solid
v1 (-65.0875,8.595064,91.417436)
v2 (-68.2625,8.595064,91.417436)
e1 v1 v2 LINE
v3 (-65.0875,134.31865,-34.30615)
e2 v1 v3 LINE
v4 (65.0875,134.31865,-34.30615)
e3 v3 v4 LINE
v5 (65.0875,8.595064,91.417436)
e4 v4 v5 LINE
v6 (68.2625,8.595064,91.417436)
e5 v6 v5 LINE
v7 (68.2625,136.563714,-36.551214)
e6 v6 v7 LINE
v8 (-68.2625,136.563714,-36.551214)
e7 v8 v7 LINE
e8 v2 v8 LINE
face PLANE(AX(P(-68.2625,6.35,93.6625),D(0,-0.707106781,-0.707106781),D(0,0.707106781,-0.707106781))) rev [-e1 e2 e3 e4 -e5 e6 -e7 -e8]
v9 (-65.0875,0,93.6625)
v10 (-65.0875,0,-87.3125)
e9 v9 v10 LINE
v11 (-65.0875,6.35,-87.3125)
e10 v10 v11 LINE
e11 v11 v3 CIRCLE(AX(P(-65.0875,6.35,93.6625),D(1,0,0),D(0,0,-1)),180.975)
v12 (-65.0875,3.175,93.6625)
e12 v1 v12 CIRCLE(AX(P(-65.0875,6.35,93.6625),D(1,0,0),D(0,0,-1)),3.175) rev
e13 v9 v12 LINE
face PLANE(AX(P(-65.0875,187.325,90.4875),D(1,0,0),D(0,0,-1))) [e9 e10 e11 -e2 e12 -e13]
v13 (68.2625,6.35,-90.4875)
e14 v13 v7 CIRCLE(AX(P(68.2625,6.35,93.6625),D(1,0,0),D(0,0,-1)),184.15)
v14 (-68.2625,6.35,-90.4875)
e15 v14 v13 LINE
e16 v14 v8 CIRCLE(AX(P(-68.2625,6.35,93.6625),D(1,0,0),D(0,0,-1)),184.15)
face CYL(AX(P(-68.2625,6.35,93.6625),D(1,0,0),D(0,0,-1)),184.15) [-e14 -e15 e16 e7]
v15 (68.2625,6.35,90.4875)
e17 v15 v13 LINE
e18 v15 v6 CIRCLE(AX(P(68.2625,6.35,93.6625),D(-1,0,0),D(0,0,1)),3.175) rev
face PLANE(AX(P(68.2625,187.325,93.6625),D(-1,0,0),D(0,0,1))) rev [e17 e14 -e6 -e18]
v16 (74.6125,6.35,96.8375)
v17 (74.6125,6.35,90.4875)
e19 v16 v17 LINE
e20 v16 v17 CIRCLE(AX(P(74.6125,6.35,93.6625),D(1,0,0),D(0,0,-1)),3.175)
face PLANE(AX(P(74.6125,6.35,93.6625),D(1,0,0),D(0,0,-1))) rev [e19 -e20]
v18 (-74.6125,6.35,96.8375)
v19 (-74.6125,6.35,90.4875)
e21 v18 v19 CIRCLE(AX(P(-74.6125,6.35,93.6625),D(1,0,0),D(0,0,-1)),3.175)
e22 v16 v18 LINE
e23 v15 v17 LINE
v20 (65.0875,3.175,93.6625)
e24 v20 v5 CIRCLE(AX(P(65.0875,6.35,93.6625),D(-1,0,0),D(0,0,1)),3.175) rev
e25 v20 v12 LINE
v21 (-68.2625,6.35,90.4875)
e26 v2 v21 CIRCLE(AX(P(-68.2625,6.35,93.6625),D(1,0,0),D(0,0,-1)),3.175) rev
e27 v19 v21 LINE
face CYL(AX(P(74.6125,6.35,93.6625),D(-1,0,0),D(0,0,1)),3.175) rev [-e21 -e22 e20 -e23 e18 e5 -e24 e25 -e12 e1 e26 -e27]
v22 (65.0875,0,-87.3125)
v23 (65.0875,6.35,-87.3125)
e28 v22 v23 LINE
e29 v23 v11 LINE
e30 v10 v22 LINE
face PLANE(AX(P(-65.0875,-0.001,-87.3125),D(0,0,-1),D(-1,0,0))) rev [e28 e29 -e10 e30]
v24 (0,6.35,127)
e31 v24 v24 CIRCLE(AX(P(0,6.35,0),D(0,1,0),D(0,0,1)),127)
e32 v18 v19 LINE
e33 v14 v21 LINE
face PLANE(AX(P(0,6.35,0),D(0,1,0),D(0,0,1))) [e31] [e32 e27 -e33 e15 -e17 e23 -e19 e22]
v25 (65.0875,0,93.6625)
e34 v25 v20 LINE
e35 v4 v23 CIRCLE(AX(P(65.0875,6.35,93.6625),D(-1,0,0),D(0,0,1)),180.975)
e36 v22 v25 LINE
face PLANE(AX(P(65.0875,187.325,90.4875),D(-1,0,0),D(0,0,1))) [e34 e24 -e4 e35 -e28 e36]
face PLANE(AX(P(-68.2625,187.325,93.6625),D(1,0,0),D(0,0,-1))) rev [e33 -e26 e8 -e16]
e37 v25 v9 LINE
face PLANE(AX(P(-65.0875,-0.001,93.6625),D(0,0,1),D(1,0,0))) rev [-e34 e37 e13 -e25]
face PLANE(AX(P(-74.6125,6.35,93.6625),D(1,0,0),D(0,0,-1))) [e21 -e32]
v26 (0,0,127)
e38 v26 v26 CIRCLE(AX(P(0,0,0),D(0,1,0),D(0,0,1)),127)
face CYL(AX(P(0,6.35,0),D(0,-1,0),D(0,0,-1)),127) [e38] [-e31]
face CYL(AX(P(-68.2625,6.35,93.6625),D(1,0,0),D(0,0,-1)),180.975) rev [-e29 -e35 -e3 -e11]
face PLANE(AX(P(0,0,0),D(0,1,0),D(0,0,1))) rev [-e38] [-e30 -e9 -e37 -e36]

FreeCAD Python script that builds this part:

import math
import FreeCAD as App
import Part
import Sketcher
from FreeCAD import Vector
Q = App.Units.Quantity


def add_polygon(sketch, points):
    """Adds a closed chain of lines whose ends are joined by coincident constraints."""
    first, n = sketch.GeometryCount, len(points)
    for a, b in zip(points, points[1:] + points[:1]):
        sketch.addGeometry(Part.LineSegment(App.Vector(*a, 0), App.Vector(*b, 0)), False)
    for i in range(n):
        sketch.addConstraint(Sketcher.Constraint("Coincident", first + i, 2, first + (i + 1) % n, 1))

doc = App.newDocument("Part")
body = doc.addObject("PartDesign::Body", "Body")

sketch1 = body.newObject("Sketcher::SketchObject", "Sketch")
sketch1.AttachmentSupport = (doc.getObject("XZ_Plane"), [""])
sketch1.MapMode = "FlatFace"
sketch1.addGeometry(Part.Circle(Vector(0, 0, 0), Vector(0, 0, 1), 127), False)
sketch1.addConstraint([
    Sketcher.Constraint("Coincident", 0, 3, -1, 1),
    Sketcher.Constraint("Diameter", 0, Q("10 in")),
])
pad1 = body.newObject("PartDesign::Pad", "Pad")
pad1.Profile = sketch1
pad1.Length = Q("0.25 in")
pad1.Reversed = True

sketch2 = body.newObject("Sketcher::SketchObject", "Sketch001")
sketch2.AttachmentSupport = (doc.getObject("XZ_Plane"), [""])
sketch2.MapMode = "FlatFace"
sketch2.AttachmentOffset = App.Placement(Vector(0, 0, -0.25 * 25.4), App.Rotation())
add_polygon(sketch2, [(-68.2625, -93.6625), (-68.2625, 93.6625), (68.2625, 93.6625), (68.2625, -93.6625)])
add_polygon(sketch2, [(65.0875, 90.4875), (-65.0875, 90.4875), (-65.0875, -90.4875), (65.0875, -90.4875)])
sketch2.addConstraint([
    Sketcher.Constraint("Vertical", 0),
    Sketcher.Constraint("Horizontal", 1),
    Sketcher.Constraint("Vertical", 2),
    Sketcher.Constraint("Horizontal", 3),
    Sketcher.Constraint("Horizontal", 4),
    Sketcher.Constraint("Vertical", 5),
    Sketcher.Constraint("Horizontal", 6),
    Sketcher.Constraint("Vertical", 7),
    Sketcher.Constraint("Symmetric", 0, 2, 2, 2, -1, 1),
    Sketcher.Constraint("Symmetric", 4, 2, 6, 2, -1, 1),
    Sketcher.Constraint("DistanceX", 1, 1, 1, 2, Q("5.375 in")),
    Sketcher.Constraint("DistanceX", 4, 2, 4, 1, Q("5.125 in")),
    Sketcher.Constraint("DistanceY", 0, 1, 0, 2, Q("7.375 in")),
    Sketcher.Constraint("DistanceY", 5, 2, 5, 1, Q("7.125 in")),
])
pad2 = body.newObject("PartDesign::Pad", "Pad001")
pad2.Profile = sketch2
pad2.Length = Q("7.125 in")
pad2.Reversed = True

sketch3 = body.newObject("Sketcher::SketchObject", "Sketch002")
sketch3.AttachmentSupport = (doc.getObject("YZ_Plane"), [""])
sketch3.MapMode = "FlatFace"
sketch3.AttachmentOffset = App.Placement(Vector(0, 0, 2.6875 * 25.4), App.Rotation())
sketch3.addGeometry([
    Part.LineSegment(Vector(187.325, -93.6625, 0), Vector(187.325, 93.6625, 0)),
    Part.ArcOfCircle(Part.Circle(Vector(6.35, 93.6625, 0), Vector(0, 0, 1), 180.975), math.radians(-90), math.radians(0)),
    Part.LineSegment(Vector(6.35, -87.3125, 0), Vector(6.35, -93.6625, 0)),
    Part.LineSegment(Vector(6.35, -93.6625, 0), Vector(187.325, -93.6625, 0)),
], False)
sketch3.addConstraint([
    Sketcher.Constraint("Tangent", 0, 2, 1, 2),
    Sketcher.Constraint("Coincident", 1, 1, 2, 1),
    Sketcher.Constraint("Coincident", 2, 2, 3, 1),
    Sketcher.Constraint("Coincident", 3, 2, 0, 1),
    Sketcher.Constraint("Vertical", 0),
    Sketcher.Constraint("Vertical", 2),
    Sketcher.Constraint("Horizontal", 3),
    Sketcher.Constraint("Radius", 1, Q("7.125 in")),
    Sketcher.Constraint("DistanceY", 2, 2, 2, 1, Q("0.25 in")),
    Sketcher.Constraint("DistanceX", 3, 1, 3, 2, Q("7.125 in")),
    Sketcher.Constraint("DistanceX", -1, 1, 1, 3, Q("0.25 in")),
    Sketcher.Constraint("DistanceY", -1, 1, 1, 3, Q("3.6875 in")),
])
pocket1 = body.newObject("PartDesign::Pocket", "Pocket")
pocket1.Profile = sketch3
pocket1.Length = Q("5.375 in")

sketch4 = body.newObject("Sketcher::SketchObject", "Sketch003")
sketch4.AttachmentSupport = (doc.getObject("XY_Plane"), [""])
sketch4.MapMode = "FlatFace"
sketch4.AttachmentOffset = App.Placement(Vector(0, 0, 3.6875 * 25.4), App.Rotation())
add_polygon(sketch4, [(-65.0875, 187.325), (-65.0875, 6.35), (65.0875, 6.35), (65.0875, 187.325)])
sketch4.addConstraint([
    Sketcher.Constraint("Vertical", 0),
    Sketcher.Constraint("Horizontal", 1),
    Sketcher.Constraint("Vertical", 2),
    Sketcher.Constraint("Horizontal", 3),
    Sketcher.Constraint("DistanceX", 1, 1, 1, 2, Q("5.125 in")),
    Sketcher.Constraint("DistanceY", 0, 2, 0, 1, Q("7.125 in")),
    Sketcher.Constraint("DistanceY", -1, 1, 0, 2, Q("0.25 in")),
    Sketcher.Constraint("DistanceX", 0, 2, -1, 1, Q("2.5625 in")),
])
pocket2 = body.newObject("PartDesign::Pocket", "Pocket001")
pocket2.Profile = sketch4
pocket2.Type = "UpToFirst"

sketch5 = body.newObject("Sketcher::SketchObject", "Sketch004")
sketch5.AttachmentSupport = (doc.getObject("XZ_Plane"), [""])
sketch5.MapMode = "FlatFace"
sketch5.AttachmentOffset = App.Placement(Vector(0, 0, -0.25 * 25.4), App.Rotation())
add_polygon(sketch5, [(-65.0875, -87.3125), (-65.0875, 93.6625), (65.0875, 93.6625), (65.0875, -87.3125)])
sketch5.addConstraint([
    Sketcher.Constraint("Vertical", 0),
    Sketcher.Constraint("Horizontal", 1),
    Sketcher.Constraint("Vertical", 2),
    Sketcher.Constraint("Horizontal", 3),
    Sketcher.Constraint("DistanceX", 1, 1, 1, 2, Q("5.125 in")),
    Sketcher.Constraint("DistanceY", 0, 1, 0, 2, Q("7.125 in")),
    Sketcher.Constraint("DistanceX", 0, 2, -1, 1, Q("2.5625 in")),
    Sketcher.Constraint("DistanceY", -1, 1, 0, 2, Q("3.6875 in")),
])
pocket3 = body.newObject("PartDesign::Pocket", "Pocket002")
pocket3.Profile = sketch5
pocket3.Type = "UpToFirst"
pocket3.Reversed = True

sketch6 = body.newObject("Sketcher::SketchObject", "Sketch005")
sketch6.AttachmentSupport = (doc.getObject("YZ_Plane"), [""])
sketch6.MapMode = "FlatFace"
sketch6.AttachmentOffset = App.Placement(Vector(0, 0, 2.6875 * 25.4), App.Rotation())
sketch6.addGeometry([
    Part.LineSegment(Vector(190.5, 93.6625, 0), Vector(187.325, 93.6625, 0)),
    Part.ArcOfCircle(Part.Circle(Vector(6.35, 93.6625, 0), Vector(0, 0, 1), 180.975), math.radians(-90), math.radians(0)),
    Part.LineSegment(Vector(6.35, -87.3125, 0), Vector(6.35, -90.4875, 0)),
    Part.ArcOfCircle(Part.Circle(Vector(6.35, 93.6625, 0), Vector(0, 0, 1), 184.15), math.radians(-90), math.radians(0)),
], False)
sketch6.addConstraint([
    Sketcher.Constraint("Coincident", 0, 2, 1, 2),
    Sketcher.Constraint("Coincident", 1, 1, 2, 1),
    Sketcher.Constraint("Coincident", 2, 2, 3, 1),
    Sketcher.Constraint("Coincident", 3, 2, 0, 1),
    Sketcher.Constraint("Horizontal", 0),
    Sketcher.Constraint("Vertical", 2),
    Sketcher.Constraint("Coincident", 3, 3, 1, 3),
    Sketcher.Constraint("Horizontal", 3, 3, 0, 2),
    Sketcher.Constraint("Vertical", 3, 3, 1, 1),
    Sketcher.Constraint("Radius", 3, Q("7.25 in")),
    Sketcher.Constraint("Radius", 1, Q("7.125 in")),
    Sketcher.Constraint("DistanceX", -1, 1, 3, 2, Q("7.5 in")),
    Sketcher.Constraint("DistanceY", -1, 1, 1, 3, Q("3.6875 in")),
])
pad3 = body.newObject("PartDesign::Pad", "Pad002")
pad3.Profile = sketch6
pad3.Length = Q("5.375 in")
pad3.Reversed = True

sketch7 = body.newObject("Sketcher::SketchObject", "Sketch006")
sketch7.AttachmentSupport = (doc.getObject("YZ_Plane"), [""])
sketch7.MapMode = "FlatFace"
sketch7.AttachmentOffset = App.Placement(Vector(0, 0, 2.6875 * 25.4), App.Rotation())
sketch7.addGeometry([
    Part.LineSegment(Vector(6.35, 93.6625, 0), Vector(136.563714, -36.551214, 0)),
    Part.ArcOfCircle(Part.Circle(Vector(6.35, 93.6625, 0), Vector(0, 0, 1), 184.15), math.radians(-45), math.radians(0)),
    Part.LineSegment(Vector(190.5, 93.6625, 0), Vector(6.35, 93.6625, 0)),
], False)
sketch7.addConstraint([
    Sketcher.Constraint("Coincident", 0, 2, 1, 1),
    Sketcher.Constraint("Coincident", 1, 2, 2, 1),
    Sketcher.Constraint("Coincident", 2, 2, 0, 1),
    Sketcher.Constraint("Horizontal", 2),
    Sketcher.Constraint("Coincident", 2, 2, 1, 3),
    Sketcher.Constraint("Radius", 1, Q("7.25 in")),
    Sketcher.Constraint("Angle", 0, Q("-45 deg")),
    Sketcher.Constraint("DistanceX", -1, 1, 1, 2, Q("7.5 in")),
    Sketcher.Constraint("DistanceY", -1, 1, 1, 3, Q("3.6875 in")),
])
pocket4 = body.newObject("PartDesign::Pocket", "Pocket003")
pocket4.Profile = sketch7
pocket4.Length = Q("5.375 in")

sketch8 = body.newObject("Sketcher::SketchObject", "Sketch007")
sketch8.AttachmentSupport = (doc.getObject("YZ_Plane"), [""])
sketch8.MapMode = "FlatFace"
sketch8.AttachmentOffset = App.Placement(Vector(0, 0, 2.6875 * 25.4), App.Rotation())
sketch8.addGeometry(Part.Circle(Vector(6.35, 93.6625, 0), Vector(0, 0, 1), 3.175), False)
sketch8.addConstraint([
    Sketcher.Constraint("Diameter", 0, Q("0.25 in")),
    Sketcher.Constraint("DistanceX", -1, 1, 0, 3, Q("0.25 in")),
    Sketcher.Constraint("DistanceY", -1, 1, 0, 3, Q("3.6875 in")),
])
pocket5 = body.newObject("PartDesign::Pocket", "Pocket004")
pocket5.Profile = sketch8
pocket5.Type = "TwoLengths"
pocket5.Length = Q("0.25 in")
pocket5.Length2 = Q("5.625 in")
pocket5.Reversed = True

doc.recompute()
